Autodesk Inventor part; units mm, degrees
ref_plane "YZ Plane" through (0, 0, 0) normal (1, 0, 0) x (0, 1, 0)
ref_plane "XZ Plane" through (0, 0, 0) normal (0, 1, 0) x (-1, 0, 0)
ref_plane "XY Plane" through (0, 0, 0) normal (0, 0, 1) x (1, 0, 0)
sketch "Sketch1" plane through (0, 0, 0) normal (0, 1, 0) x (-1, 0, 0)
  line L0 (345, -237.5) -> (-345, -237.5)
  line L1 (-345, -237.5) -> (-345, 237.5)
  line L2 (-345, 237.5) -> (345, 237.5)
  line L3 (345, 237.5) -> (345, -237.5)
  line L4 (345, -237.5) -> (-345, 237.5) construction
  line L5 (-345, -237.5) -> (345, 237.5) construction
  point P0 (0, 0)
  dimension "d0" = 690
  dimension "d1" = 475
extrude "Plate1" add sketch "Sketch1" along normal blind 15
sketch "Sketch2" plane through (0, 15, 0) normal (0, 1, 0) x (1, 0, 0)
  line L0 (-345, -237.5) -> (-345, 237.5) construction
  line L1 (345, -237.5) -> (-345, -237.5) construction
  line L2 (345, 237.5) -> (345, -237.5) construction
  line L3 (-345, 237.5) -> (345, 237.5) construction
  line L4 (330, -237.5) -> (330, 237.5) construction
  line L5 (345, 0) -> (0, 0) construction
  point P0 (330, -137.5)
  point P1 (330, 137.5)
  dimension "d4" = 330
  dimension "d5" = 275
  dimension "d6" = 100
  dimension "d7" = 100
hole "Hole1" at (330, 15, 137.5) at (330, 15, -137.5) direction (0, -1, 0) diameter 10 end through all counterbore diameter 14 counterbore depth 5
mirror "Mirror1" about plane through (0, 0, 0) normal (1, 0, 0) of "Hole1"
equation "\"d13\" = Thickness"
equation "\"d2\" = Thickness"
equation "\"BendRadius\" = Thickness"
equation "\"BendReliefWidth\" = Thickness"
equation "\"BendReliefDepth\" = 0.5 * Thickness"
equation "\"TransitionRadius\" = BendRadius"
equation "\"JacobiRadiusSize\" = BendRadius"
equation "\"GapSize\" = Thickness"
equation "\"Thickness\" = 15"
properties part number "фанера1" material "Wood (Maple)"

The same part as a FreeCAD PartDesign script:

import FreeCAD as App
import Part
import Sketcher

V = App.Vector


def add_polygon(sketch, points):
    """Adds a closed chain of lines whose ends are joined by coincident constraints."""
    first, n = sketch.GeometryCount, len(points)
    for a, b in zip(points, points[1:] + points[:1]):
        sketch.addGeometry(Part.LineSegment(App.Vector(*a, 0), App.Vector(*b, 0)), False)
    for i in range(n):
        sketch.addConstraint(Sketcher.Constraint("Coincident", first + i, 2, first + (i + 1) % n, 1))

doc = App.newDocument("Part")
body = doc.addObject("PartDesign::Body", "Body")

# Sketch on XZ plane
sketch1 = body.newObject("Sketcher::SketchObject", "Sketch")
sketch1.AttachmentSupport = (doc.getObject("XZ_Plane"), [""])
sketch1.MapMode = "FlatFace"
add_polygon(sketch1, [(345, -238), (-345, -238), (-345, 238), (345, 238)])  # lines 0-3
sketch1.addConstraint([
    Sketcher.Constraint("Horizontal", 0),
    Sketcher.Constraint("Vertical", 1),
    Sketcher.Constraint("Horizontal", 2),
    Sketcher.Constraint("Vertical", 3),
    Sketcher.Constraint("Symmetric", 0, 2, 2, 2, -1, 1),
    Sketcher.Constraint("DistanceX", 0, 2, 0, 1, 690.0),
    Sketcher.Constraint("DistanceY", 1, 1, 1, 2, 475.0),
])
pad1 = body.newObject("PartDesign::Pad", "Pad")
pad1.Profile = sketch1
pad1.Length = 15
pad1.Reversed = True

# Sketch on XZ plane
sketch2 = body.newObject("Sketcher::SketchObject", "Sketch001")
sketch2.AttachmentSupport = (doc.getObject("XZ_Plane"), [""])
sketch2.MapMode = "FlatFace"
sketch2.AttachmentOffset = App.Placement(V(0, 0, -15), App.Rotation())
sketch2.addGeometry([
    Part.Circle(V(330, 138, 0), V(0, 0, 1), 5),
    Part.Circle(V(330, -138, 0), V(0, 0, 1), 5),
], False)
sketch2.addConstraint([
    Sketcher.Constraint("Equal", 0, 1),
    Sketcher.Constraint("Symmetric", 0, 3, 1, 3, -1),
    Sketcher.Constraint("Diameter", 0, 10.0),
    Sketcher.Constraint("DistanceX", -1, 1, 0, 3, 330.0),
    Sketcher.Constraint("DistanceY", 1, 3, 0, 3, 275.0),
])
doc.recompute()
hole = body.newObject("PartDesign::Hole", "Hole")
hole.Profile = sketch2
hole.ThreadType = "None"
hole.Diameter = 10
hole.DepthType = "ThroughAll"
hole.HoleCutType = "Counterbore"
hole.HoleCutDiameter = 14
hole.HoleCutDepth = 5
hole.Reversed = True
doc.recompute()

mirrored = body.newObject("PartDesign::Mirrored", "Mirrored")
mirrored.Originals = [hole]
mirrored.MirrorPlane = (doc.getObject("YZ_Plane"), [""])
body.Tip = mirrored

doc.recompute()
